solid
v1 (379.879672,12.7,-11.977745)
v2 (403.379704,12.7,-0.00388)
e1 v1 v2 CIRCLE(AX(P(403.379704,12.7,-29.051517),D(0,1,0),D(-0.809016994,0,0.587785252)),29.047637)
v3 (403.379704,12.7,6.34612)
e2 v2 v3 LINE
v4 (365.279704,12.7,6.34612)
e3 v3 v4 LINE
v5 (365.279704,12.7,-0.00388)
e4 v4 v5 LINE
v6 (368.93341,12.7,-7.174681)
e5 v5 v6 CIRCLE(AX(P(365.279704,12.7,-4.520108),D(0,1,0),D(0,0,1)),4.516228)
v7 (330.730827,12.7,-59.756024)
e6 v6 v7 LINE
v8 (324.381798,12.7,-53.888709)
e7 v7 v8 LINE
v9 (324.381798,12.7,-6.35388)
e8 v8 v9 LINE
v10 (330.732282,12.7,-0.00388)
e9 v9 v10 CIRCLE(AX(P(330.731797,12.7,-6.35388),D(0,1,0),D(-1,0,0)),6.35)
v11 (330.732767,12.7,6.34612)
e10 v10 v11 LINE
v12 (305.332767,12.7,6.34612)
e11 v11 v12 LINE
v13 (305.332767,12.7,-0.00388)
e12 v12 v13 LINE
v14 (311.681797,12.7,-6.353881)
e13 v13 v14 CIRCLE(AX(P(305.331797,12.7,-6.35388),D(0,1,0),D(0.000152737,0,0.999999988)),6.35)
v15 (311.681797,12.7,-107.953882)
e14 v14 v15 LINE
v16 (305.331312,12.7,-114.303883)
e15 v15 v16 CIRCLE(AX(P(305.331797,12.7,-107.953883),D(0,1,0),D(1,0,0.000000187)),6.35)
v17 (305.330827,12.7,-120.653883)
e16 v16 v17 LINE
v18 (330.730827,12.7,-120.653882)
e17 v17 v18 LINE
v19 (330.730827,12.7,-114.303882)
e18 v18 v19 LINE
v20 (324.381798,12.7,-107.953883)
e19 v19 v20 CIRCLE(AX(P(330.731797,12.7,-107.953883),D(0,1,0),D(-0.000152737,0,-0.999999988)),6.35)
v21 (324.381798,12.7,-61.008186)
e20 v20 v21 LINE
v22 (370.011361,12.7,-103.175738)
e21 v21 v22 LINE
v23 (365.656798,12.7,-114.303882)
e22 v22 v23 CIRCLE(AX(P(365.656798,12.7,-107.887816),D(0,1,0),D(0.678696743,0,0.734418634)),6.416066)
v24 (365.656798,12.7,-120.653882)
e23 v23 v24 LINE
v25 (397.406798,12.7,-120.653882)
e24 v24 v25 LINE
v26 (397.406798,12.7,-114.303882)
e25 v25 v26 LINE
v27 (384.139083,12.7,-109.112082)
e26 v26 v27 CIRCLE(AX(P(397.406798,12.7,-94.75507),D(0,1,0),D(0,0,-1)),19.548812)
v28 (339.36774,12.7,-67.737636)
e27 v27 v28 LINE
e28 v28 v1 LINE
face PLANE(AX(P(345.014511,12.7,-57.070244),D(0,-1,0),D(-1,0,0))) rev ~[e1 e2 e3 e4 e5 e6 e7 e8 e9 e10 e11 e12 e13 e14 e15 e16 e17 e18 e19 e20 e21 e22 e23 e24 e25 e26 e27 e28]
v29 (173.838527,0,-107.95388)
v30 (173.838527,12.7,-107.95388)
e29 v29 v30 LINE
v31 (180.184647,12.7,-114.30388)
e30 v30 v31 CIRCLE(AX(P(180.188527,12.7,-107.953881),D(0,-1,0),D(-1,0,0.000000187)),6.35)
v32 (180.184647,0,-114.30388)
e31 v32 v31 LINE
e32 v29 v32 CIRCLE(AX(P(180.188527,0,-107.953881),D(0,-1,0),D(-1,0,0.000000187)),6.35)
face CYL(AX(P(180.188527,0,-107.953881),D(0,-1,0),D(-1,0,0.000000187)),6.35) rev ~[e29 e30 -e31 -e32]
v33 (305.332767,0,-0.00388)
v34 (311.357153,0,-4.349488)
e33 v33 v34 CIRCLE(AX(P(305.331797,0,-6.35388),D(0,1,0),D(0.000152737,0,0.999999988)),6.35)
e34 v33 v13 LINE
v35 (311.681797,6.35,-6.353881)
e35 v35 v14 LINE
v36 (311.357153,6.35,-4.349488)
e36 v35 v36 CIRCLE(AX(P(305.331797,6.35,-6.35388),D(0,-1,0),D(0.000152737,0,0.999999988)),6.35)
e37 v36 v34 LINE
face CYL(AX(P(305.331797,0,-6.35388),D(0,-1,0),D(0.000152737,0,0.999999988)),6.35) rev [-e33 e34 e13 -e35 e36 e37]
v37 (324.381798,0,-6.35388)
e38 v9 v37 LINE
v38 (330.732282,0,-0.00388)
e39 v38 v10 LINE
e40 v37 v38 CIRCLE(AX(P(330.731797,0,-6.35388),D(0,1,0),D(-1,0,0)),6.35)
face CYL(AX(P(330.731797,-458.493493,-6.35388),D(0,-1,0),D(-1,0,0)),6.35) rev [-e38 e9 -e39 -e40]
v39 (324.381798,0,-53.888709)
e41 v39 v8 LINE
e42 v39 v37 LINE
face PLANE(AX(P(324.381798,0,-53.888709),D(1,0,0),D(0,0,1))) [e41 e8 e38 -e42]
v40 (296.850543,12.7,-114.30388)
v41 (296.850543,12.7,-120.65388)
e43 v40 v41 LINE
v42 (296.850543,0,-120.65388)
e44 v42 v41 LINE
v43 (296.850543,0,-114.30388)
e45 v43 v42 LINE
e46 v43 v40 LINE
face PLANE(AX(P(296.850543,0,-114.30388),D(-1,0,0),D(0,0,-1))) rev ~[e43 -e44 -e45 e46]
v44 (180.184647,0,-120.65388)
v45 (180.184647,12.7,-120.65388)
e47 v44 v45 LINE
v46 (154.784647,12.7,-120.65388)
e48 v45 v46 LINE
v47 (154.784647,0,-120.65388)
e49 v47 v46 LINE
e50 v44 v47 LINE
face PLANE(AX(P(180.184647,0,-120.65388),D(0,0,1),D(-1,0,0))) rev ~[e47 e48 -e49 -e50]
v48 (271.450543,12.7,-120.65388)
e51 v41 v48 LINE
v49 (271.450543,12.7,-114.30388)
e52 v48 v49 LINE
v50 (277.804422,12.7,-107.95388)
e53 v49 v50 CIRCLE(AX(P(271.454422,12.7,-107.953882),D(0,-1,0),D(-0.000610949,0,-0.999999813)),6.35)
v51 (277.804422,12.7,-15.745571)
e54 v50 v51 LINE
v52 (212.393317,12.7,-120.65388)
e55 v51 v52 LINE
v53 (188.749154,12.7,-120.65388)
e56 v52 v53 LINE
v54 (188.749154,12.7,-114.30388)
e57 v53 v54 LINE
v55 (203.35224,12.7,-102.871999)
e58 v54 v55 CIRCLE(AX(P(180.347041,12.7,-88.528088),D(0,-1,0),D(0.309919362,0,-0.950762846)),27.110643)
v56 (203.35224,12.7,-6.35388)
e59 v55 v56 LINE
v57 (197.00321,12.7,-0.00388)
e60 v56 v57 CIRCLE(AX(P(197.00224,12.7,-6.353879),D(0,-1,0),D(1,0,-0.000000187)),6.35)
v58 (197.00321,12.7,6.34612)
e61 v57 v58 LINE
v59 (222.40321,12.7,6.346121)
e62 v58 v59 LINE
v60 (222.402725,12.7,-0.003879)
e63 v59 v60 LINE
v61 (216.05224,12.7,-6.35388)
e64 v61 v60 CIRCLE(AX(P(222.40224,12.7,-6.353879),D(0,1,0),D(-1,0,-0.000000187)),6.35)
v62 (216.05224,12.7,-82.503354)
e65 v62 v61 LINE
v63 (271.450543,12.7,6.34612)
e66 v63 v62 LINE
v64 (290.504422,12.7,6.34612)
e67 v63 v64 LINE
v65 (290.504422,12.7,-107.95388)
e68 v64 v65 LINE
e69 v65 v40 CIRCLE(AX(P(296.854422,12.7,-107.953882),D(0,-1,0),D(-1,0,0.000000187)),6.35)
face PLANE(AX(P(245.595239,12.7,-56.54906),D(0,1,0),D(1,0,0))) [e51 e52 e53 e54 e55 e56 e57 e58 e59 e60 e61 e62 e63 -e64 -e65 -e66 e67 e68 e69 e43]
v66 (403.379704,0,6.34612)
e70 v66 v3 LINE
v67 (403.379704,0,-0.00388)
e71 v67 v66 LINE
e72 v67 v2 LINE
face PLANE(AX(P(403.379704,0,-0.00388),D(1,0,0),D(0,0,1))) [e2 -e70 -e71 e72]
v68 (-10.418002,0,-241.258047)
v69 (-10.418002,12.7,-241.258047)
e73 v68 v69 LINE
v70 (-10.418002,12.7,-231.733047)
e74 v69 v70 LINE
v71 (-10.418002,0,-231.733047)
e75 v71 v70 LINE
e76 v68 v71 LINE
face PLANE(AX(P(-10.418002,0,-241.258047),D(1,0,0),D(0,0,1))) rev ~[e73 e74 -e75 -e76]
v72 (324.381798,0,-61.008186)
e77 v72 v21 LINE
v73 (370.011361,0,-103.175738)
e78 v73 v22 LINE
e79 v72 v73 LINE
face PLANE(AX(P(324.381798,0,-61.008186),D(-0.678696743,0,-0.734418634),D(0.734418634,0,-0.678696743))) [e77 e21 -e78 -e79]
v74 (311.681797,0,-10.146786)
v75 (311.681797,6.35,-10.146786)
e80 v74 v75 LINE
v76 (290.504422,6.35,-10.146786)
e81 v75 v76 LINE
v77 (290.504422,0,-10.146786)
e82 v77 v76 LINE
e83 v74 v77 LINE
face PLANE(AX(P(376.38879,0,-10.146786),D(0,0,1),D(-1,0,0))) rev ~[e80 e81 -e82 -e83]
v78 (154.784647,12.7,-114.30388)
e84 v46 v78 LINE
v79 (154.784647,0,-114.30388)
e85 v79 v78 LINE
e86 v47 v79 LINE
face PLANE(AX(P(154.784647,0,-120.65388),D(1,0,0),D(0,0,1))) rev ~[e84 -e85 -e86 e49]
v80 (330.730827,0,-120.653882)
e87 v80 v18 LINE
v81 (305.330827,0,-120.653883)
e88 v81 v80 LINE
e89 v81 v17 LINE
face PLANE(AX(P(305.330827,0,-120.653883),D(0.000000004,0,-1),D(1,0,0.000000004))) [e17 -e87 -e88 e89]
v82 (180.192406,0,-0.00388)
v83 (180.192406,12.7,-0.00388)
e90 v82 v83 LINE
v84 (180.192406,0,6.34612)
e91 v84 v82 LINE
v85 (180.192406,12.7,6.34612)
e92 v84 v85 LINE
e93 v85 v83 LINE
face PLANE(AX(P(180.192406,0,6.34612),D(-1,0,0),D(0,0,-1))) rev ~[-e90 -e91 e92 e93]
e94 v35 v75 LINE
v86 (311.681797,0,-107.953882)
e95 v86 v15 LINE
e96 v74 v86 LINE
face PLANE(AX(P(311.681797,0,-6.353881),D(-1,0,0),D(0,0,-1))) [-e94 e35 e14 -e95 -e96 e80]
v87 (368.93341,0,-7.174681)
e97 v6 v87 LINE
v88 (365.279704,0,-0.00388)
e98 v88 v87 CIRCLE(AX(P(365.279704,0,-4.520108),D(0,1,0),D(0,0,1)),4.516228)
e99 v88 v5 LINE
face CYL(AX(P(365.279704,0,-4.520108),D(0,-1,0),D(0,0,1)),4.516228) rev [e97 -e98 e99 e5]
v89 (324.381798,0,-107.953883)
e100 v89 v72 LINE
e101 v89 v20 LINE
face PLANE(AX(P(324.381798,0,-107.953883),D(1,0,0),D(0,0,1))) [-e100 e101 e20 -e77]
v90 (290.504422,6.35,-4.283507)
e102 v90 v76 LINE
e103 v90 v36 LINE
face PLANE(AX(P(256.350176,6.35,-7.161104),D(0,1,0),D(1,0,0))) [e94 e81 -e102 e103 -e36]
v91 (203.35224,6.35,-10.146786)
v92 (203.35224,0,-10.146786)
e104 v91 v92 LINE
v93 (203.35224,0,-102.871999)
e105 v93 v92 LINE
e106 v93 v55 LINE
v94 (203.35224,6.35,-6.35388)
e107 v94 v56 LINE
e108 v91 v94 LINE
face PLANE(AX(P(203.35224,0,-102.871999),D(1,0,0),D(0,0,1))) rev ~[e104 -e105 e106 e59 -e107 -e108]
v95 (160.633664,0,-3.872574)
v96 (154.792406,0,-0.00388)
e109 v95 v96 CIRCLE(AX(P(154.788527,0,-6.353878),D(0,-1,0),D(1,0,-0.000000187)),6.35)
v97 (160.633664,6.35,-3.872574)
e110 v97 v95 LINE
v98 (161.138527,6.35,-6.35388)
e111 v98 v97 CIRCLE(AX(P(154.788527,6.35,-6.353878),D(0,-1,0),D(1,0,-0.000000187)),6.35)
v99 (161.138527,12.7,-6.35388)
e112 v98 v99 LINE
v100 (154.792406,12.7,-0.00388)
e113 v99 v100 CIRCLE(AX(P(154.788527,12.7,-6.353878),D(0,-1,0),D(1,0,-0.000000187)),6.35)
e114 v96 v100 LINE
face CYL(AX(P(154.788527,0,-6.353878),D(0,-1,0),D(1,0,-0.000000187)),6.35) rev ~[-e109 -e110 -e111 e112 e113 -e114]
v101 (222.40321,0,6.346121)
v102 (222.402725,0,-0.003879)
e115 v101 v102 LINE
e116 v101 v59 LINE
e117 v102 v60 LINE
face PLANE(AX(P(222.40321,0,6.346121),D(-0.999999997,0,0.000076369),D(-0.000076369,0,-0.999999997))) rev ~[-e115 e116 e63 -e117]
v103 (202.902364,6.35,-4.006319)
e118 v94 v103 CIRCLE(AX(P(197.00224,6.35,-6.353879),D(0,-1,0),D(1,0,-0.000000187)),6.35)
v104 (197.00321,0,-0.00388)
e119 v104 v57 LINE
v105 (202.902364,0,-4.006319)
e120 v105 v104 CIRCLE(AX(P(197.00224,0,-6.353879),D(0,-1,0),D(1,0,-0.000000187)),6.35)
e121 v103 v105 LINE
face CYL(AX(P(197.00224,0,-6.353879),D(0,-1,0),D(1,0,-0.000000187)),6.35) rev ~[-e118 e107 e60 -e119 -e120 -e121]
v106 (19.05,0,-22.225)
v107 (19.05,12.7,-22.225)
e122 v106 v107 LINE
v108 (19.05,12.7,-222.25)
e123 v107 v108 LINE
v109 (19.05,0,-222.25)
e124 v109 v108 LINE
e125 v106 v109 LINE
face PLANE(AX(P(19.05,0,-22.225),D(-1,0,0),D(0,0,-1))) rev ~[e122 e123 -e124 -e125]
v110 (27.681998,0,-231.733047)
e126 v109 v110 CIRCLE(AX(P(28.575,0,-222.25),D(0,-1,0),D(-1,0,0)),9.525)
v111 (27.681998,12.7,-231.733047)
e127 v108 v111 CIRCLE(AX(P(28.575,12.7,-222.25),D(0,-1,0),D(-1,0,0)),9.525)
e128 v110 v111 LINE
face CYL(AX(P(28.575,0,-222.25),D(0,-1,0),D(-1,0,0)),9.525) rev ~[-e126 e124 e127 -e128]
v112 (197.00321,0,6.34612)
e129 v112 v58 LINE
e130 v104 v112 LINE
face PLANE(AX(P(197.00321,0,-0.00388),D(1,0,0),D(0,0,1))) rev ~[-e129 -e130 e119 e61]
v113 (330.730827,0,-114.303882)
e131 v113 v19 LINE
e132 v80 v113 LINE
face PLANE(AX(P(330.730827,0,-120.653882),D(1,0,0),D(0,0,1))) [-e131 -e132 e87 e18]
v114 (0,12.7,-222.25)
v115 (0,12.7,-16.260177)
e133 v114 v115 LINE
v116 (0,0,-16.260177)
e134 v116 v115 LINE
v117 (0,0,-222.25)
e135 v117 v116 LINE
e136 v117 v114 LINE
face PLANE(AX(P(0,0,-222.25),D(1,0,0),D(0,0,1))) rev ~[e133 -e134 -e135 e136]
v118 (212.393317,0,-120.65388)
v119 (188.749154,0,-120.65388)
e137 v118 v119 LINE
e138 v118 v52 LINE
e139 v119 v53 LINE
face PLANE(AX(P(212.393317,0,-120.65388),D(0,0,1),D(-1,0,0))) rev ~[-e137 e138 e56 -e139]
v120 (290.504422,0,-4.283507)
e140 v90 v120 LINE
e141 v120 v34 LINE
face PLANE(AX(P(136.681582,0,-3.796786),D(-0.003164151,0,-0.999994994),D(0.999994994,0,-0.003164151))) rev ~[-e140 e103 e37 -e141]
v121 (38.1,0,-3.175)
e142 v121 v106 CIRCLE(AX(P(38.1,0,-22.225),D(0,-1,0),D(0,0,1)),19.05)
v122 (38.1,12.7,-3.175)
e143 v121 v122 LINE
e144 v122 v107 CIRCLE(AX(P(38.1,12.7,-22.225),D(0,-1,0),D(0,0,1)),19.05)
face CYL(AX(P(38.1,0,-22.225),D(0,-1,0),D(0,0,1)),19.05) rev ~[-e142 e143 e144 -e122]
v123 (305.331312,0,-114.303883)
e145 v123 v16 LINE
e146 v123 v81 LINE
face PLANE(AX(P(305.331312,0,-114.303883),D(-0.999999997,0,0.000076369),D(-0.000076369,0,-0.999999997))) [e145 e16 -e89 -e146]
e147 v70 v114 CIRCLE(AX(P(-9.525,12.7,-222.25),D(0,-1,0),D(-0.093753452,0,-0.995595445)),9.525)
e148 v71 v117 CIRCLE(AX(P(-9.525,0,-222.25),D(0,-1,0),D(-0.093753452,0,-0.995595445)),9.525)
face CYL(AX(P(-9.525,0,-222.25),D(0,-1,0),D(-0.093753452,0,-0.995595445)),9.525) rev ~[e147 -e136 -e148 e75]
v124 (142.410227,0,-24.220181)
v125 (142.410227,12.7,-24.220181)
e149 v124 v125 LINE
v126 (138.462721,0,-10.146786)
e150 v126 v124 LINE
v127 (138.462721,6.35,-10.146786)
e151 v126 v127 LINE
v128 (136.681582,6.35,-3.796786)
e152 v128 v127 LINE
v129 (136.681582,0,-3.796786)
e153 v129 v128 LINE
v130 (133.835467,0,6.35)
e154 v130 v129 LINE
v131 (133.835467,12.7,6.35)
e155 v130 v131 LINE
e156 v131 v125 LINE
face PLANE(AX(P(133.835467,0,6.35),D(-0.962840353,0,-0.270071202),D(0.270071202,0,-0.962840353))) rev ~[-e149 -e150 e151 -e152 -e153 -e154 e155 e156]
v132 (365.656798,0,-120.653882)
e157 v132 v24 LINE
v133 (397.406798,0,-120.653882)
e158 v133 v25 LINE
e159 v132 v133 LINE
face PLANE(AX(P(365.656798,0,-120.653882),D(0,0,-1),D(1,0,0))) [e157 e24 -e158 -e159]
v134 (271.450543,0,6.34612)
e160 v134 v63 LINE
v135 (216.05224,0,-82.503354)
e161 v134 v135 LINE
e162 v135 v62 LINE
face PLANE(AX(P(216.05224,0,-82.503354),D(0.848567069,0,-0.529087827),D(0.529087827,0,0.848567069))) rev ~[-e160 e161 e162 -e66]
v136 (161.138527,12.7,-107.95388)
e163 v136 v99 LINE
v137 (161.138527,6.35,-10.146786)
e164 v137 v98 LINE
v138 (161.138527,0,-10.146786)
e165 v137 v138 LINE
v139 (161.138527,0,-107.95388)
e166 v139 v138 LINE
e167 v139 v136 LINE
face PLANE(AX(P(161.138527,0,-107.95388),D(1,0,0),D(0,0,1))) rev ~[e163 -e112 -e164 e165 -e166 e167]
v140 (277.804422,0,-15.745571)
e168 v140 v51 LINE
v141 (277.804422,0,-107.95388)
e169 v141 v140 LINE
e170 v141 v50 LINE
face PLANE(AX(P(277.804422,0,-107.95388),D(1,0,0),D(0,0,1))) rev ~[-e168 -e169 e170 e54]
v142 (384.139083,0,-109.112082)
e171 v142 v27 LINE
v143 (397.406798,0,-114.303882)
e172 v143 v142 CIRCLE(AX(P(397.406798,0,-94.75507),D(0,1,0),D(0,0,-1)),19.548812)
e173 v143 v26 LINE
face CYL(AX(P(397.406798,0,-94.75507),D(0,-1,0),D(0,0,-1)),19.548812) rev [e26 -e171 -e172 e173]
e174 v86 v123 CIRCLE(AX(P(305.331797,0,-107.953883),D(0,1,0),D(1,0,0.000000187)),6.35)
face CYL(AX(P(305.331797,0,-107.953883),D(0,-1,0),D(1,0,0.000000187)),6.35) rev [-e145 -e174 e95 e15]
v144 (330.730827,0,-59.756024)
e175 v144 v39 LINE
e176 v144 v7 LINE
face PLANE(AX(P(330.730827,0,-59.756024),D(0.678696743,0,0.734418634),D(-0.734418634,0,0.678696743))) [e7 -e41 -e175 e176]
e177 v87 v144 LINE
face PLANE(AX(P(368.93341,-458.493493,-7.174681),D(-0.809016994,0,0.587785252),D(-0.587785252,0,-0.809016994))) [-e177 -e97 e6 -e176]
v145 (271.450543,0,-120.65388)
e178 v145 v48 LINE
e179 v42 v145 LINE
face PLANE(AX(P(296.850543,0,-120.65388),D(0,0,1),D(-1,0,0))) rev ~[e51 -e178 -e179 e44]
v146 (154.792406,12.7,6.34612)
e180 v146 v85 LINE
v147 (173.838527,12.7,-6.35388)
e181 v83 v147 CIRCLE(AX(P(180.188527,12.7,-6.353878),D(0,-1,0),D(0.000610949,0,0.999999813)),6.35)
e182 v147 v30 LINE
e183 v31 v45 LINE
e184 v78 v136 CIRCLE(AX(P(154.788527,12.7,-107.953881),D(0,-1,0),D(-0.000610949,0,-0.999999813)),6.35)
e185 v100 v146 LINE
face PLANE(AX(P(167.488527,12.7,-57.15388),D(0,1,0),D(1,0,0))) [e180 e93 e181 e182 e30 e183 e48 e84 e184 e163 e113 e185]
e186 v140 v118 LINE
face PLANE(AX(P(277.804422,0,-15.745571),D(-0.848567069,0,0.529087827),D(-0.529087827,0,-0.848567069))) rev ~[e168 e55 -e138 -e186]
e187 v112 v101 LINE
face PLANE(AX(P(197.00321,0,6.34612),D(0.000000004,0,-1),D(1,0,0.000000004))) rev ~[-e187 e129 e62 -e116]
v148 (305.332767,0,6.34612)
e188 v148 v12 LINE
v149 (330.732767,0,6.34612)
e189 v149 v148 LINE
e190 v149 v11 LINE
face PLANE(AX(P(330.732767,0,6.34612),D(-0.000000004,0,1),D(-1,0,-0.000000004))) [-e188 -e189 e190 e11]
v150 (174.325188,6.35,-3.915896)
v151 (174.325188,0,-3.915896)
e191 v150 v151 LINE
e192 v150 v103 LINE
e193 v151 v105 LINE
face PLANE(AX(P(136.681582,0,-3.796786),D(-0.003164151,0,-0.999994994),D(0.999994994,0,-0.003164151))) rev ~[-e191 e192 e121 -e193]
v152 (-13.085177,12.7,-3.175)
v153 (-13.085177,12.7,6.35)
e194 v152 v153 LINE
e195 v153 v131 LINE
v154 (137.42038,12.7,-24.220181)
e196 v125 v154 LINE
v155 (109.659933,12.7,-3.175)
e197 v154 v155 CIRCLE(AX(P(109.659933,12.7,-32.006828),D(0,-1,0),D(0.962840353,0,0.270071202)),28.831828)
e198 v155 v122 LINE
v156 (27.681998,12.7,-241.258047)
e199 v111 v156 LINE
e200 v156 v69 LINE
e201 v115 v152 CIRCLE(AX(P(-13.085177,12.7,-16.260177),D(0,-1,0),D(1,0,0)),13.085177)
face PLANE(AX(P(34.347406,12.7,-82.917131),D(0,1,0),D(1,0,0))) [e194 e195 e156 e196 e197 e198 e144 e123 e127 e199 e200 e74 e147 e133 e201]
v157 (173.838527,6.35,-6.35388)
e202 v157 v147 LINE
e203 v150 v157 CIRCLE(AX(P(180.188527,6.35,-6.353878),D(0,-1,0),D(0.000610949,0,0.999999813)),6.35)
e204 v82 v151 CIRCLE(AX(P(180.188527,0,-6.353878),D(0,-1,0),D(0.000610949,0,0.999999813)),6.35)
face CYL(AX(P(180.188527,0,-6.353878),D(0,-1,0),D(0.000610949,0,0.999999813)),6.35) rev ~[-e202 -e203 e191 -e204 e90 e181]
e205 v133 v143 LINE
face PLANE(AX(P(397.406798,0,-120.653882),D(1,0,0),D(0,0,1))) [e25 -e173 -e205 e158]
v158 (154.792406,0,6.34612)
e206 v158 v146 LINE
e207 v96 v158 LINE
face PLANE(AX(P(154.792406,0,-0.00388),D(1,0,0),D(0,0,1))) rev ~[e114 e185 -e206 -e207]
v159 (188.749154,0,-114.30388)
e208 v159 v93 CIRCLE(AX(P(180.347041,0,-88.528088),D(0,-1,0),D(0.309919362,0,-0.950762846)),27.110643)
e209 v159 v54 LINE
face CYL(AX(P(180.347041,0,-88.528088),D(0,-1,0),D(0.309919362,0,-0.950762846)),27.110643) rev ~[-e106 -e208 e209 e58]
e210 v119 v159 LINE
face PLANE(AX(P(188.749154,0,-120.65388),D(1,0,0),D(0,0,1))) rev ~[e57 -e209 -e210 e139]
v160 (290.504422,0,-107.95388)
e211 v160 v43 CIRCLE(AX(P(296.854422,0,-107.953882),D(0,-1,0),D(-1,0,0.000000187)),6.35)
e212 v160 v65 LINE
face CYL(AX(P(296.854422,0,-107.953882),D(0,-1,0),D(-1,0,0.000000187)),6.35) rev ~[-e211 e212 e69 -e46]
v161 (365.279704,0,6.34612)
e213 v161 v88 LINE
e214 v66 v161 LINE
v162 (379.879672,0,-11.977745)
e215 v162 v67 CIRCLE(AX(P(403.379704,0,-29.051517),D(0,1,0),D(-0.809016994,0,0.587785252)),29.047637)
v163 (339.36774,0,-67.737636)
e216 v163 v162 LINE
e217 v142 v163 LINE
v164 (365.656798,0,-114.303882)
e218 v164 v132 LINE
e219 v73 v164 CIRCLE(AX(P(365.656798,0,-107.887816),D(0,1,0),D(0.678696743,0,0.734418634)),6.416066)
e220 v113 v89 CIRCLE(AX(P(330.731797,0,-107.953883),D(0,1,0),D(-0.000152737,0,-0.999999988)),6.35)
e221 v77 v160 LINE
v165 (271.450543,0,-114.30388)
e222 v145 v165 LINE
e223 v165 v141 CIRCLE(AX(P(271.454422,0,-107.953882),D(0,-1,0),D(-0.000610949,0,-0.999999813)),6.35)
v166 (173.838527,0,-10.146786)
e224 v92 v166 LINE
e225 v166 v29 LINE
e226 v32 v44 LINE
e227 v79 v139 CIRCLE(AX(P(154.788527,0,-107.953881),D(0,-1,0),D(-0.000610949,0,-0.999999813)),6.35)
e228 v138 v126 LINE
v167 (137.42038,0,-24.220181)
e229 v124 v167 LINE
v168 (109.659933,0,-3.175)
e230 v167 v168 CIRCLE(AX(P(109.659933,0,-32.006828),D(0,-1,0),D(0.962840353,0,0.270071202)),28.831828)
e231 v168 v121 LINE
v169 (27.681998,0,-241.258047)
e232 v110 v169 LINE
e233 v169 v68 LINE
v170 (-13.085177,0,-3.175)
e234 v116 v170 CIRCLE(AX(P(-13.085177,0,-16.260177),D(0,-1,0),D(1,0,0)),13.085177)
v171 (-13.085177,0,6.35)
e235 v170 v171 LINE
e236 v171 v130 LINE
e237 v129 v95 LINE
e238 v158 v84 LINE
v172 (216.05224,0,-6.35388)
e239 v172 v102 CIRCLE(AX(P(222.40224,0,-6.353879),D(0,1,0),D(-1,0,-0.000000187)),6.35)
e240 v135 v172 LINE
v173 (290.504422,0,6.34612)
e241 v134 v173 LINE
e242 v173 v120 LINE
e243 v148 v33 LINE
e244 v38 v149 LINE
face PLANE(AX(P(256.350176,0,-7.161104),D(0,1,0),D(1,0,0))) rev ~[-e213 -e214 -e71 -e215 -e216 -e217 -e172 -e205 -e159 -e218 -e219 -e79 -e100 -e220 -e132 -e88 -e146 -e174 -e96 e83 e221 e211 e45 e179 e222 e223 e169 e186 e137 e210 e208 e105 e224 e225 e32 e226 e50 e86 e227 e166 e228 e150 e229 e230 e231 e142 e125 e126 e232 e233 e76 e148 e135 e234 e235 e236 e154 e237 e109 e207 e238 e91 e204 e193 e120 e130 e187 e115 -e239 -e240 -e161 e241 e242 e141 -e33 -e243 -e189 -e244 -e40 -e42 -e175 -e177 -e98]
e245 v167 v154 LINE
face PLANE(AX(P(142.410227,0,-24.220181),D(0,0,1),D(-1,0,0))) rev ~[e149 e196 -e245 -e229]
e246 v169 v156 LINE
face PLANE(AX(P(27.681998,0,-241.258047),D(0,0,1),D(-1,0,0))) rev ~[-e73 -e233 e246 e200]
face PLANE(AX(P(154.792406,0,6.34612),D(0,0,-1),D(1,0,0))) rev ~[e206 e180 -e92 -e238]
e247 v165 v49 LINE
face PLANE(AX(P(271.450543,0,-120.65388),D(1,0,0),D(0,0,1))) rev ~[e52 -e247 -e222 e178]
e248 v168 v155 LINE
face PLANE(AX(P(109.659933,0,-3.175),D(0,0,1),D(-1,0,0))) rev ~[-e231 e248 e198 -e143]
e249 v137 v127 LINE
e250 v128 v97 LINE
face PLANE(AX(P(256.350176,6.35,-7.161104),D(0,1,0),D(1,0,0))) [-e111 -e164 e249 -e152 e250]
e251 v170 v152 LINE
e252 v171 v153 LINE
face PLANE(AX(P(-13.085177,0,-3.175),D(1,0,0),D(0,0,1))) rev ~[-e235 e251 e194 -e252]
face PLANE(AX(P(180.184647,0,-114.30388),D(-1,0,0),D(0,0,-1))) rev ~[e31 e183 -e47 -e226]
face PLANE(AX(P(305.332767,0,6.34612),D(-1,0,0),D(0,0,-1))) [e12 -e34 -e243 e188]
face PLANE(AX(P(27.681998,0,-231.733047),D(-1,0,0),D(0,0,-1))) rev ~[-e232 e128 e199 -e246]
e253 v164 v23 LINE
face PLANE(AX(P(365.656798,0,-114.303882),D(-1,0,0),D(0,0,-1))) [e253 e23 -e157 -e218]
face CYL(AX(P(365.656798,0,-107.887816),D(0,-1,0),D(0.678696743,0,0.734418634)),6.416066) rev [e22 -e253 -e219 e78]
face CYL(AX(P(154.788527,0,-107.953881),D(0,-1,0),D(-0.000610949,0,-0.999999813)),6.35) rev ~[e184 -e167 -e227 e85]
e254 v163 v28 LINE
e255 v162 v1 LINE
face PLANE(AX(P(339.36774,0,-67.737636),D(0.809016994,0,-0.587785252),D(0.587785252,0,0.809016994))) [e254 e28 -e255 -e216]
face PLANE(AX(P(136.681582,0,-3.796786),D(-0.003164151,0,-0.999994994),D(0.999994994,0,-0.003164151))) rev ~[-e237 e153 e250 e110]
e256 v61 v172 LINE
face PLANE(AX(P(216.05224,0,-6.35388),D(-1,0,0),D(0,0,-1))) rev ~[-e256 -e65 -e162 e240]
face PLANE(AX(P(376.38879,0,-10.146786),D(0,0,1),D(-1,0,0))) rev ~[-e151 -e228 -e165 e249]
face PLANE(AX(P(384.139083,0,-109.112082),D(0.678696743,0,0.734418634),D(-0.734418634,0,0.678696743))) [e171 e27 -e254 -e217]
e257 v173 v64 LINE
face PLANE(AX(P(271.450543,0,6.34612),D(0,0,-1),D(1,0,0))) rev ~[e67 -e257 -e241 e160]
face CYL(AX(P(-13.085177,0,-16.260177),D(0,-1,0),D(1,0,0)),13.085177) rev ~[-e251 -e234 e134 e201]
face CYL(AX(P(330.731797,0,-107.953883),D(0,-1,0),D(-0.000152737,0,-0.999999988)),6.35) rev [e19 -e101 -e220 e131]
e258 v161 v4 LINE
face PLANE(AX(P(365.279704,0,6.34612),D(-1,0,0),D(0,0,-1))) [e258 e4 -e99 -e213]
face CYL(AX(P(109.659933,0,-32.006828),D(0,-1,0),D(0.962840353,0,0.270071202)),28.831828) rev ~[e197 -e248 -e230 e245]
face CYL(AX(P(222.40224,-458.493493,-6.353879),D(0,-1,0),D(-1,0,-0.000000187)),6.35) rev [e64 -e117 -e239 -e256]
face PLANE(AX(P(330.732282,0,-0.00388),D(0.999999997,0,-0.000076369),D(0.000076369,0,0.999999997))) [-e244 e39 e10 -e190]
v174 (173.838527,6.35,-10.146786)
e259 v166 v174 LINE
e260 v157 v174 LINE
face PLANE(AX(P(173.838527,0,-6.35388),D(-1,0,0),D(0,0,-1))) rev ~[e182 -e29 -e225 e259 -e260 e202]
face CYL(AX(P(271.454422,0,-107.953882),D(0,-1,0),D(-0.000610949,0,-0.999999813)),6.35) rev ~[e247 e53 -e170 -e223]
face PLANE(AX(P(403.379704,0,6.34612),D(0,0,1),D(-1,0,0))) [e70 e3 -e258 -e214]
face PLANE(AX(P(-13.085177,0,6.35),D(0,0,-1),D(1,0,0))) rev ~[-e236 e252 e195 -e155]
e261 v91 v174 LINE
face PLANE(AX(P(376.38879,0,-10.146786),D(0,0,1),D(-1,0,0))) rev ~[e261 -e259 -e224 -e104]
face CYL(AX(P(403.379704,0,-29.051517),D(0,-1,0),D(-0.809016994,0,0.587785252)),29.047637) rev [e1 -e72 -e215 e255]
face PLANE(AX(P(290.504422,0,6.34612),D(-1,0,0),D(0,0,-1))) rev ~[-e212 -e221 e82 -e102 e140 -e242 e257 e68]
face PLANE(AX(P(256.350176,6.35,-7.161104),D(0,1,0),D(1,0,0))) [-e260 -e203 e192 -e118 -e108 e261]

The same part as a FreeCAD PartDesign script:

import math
import FreeCAD as App
import Part
import Sketcher

V = App.Vector
Q = App.Units.Quantity

doc = App.newDocument("Part")
body = doc.addObject("PartDesign::Body", "Body")

sketch1 = body.newObject("Sketcher::SketchObject", "Sketch")
sketch1.AttachmentSupport = (doc.getObject("XZ_Plane"), [""])
sketch1.MapMode = "FlatFace"
sketch1.addGeometry([
    Part.LineSegment(V(174, -6, 0), V(174, -108, 0)),
    Part.ArcOfCircle(Part.Circle(V(180, -108, 0), V(0, 0, 1), 6), math.radians(180), math.radians(270)),
    Part.LineSegment(V(180, -114, 0), V(180, -121, 0)),
    Part.LineSegment(V(180, -121, 0), V(155, -121, 0)),
    Part.LineSegment(V(155, -121, 0), V(155, -114, 0)),
    Part.ArcOfCircle(Part.Circle(V(155, -108, 0), V(0, 0, 1), 6), math.radians(-90), math.radians(0)),
    Part.LineSegment(V(161, -108, 0), V(161, -6, 0)),
    Part.ArcOfCircle(Part.Circle(V(155, -6, 0), V(0, 0, 1), 6), math.radians(0), math.radians(90)),
    Part.LineSegment(V(155, 0, 0), V(155, 6, 0)),
    Part.LineSegment(V(155, 6, 0), V(180, 6, 0)),
    Part.LineSegment(V(180, 6, 0), V(180, 0, 0)),
    Part.ArcOfCircle(Part.Circle(V(180, -6, 0), V(0, 0, 1), 6), math.radians(90), math.radians(180)),
], False)
sketch1.addConstraint([
    Sketcher.Constraint("Tangent", 0, 2, 1, 1),
    Sketcher.Constraint("Coincident", 1, 2, 2, 1),
    Sketcher.Constraint("Coincident", 2, 2, 3, 1),
    Sketcher.Constraint("Coincident", 3, 2, 4, 1),
    Sketcher.Constraint("Coincident", 4, 2, 5, 1),
    Sketcher.Constraint("Tangent", 5, 2, 6, 1),
    Sketcher.Constraint("Tangent", 6, 2, 7, 1),
    Sketcher.Constraint("Coincident", 7, 2, 8, 1),
    Sketcher.Constraint("Coincident", 8, 2, 9, 1),
    Sketcher.Constraint("Coincident", 9, 2, 10, 1),
    Sketcher.Constraint("Coincident", 10, 2, 11, 1),
    Sketcher.Constraint("Tangent", 11, 2, 0, 1),
    Sketcher.Constraint("Vertical", 0),
    Sketcher.Constraint("Vertical", 2),
    Sketcher.Constraint("Horizontal", 3),
    Sketcher.Constraint("Vertical", 4),
    Sketcher.Constraint("Vertical", 6),
    Sketcher.Constraint("Vertical", 8),
    Sketcher.Constraint("Horizontal", 9),
    Sketcher.Constraint("Vertical", 10),
    Sketcher.Constraint("Equal", 1, 5),
    Sketcher.Constraint("Equal", 5, 7),
    Sketcher.Constraint("Equal", 7, 11),
    Sketcher.Constraint("Horizontal", 1, 3, 5, 3),
    Sketcher.Constraint("Horizontal", 7, 3, 11, 3),
    Sketcher.Constraint("Equal", 3, 9),
    Sketcher.Constraint("Equal", 4, 8),
    Sketcher.Constraint("DistanceX", 3, 2, 3, 1, Q("1 in")),
    Sketcher.Constraint("DistanceY", 0, 2, 0, 1, Q("4 in")),
    Sketcher.Constraint("Radius", 1, Q("0.25 in")),
    Sketcher.Constraint("DistanceX", 5, 3, 1, 3, Q("1 in")),
    Sketcher.Constraint("DistanceY", 2, 2, 2, 1, Q("0.25 in")),
    Sketcher.Constraint("DistanceY", 1, 3, -1, 1, 107.953881),
    Sketcher.Constraint("DistanceX", 1, 2, 1, 3, 0.00388),
    Sketcher.Constraint("DistanceX", 7, 3, 7, 2, 0.00388),
    Sketcher.Constraint("DistanceX", -1, 1, 1, 3, 180.188527),
])
pad1 = body.newObject("PartDesign::Pad", "Pad")
pad1.Profile = sketch1
pad1.Length = Q("0.5 in")
pad1.Reversed = True
body2 = doc.addObject("PartDesign::Body", "Body001")

sketch2 = body2.newObject("Sketcher::SketchObject", "Sketch001")
sketch2.AttachmentSupport = (doc.getObject("XZ_Plane001"), [""])
sketch2.MapMode = "FlatFace"
sketch2.addGeometry([
    Part.LineSegment(V(291, 6, 0), V(291, -108, 0)),
    Part.ArcOfCircle(Part.Circle(V(297, -108, 0), V(0, 0, 1), 6), math.radians(180), math.radians(270)),
    Part.LineSegment(V(297, -114, 0), V(297, -121, 0)),
    Part.LineSegment(V(297, -121, 0), V(271, -121, 0)),
    Part.LineSegment(V(271, -121, 0), V(271, -114, 0)),
    Part.ArcOfCircle(Part.Circle(V(271, -108, 0), V(0, 0, 1), 6), math.radians(-90), math.radians(0)),
    Part.LineSegment(V(278, -108, 0), V(278, -16, 0)),
    Part.LineSegment(V(278, -16, 0), V(212, -121, 0)),
    Part.LineSegment(V(212, -121, 0), V(189, -121, 0)),
    Part.LineSegment(V(189, -121, 0), V(189, -114, 0)),
    Part.ArcOfCircle(Part.Circle(V(180, -89, 0), V(0, 0, 1), 27), math.radians(-72), math.radians(-32)),
    Part.LineSegment(V(203, -103, 0), V(203, -6, 0)),
    Part.ArcOfCircle(Part.Circle(V(197, -6, 0), V(0, 0, 1), 6), math.radians(0), math.radians(90)),
    Part.LineSegment(V(197, 0, 0), V(197, 6, 0)),
    Part.LineSegment(V(197, 6, 0), V(222, 6, 0)),
    Part.LineSegment(V(222, 6, 0), V(222, 0, 0)),
    Part.ArcOfCircle(Part.Circle(V(222, -6, 0), V(0, 0, 1), 6), math.radians(90), math.radians(180)),
    Part.LineSegment(V(216, -6, 0), V(216, -83, 0)),
    Part.LineSegment(V(216, -83, 0), V(271, 6, 0)),
    Part.LineSegment(V(271, 6, 0), V(291, 6, 0)),
], False)
sketch2.addConstraint([
    Sketcher.Constraint("Tangent", 0, 2, 1, 1),
    Sketcher.Constraint("Coincident", 1, 2, 2, 1),
    Sketcher.Constraint("Coincident", 2, 2, 3, 1),
    Sketcher.Constraint("Coincident", 3, 2, 4, 1),
    Sketcher.Constraint("Coincident", 4, 2, 5, 1),
    Sketcher.Constraint("Tangent", 5, 2, 6, 1),
    Sketcher.Constraint("Coincident", 6, 2, 7, 1),
    Sketcher.Constraint("Coincident", 7, 2, 8, 1),
    Sketcher.Constraint("Coincident", 8, 2, 9, 1),
    Sketcher.Constraint("Coincident", 9, 2, 10, 1),
    Sketcher.Constraint("Coincident", 10, 2, 11, 1),
    Sketcher.Constraint("Tangent", 11, 2, 12, 1),
    Sketcher.Constraint("Coincident", 12, 2, 13, 1),
    Sketcher.Constraint("Coincident", 13, 2, 14, 1),
    Sketcher.Constraint("Coincident", 14, 2, 15, 1),
    Sketcher.Constraint("Coincident", 15, 2, 16, 1),
    Sketcher.Constraint("Tangent", 16, 2, 17, 1),
    Sketcher.Constraint("Coincident", 17, 2, 18, 1),
    Sketcher.Constraint("Coincident", 18, 2, 19, 1),
    Sketcher.Constraint("Coincident", 19, 2, 0, 1),
    Sketcher.Constraint("Vertical", 0),
    Sketcher.Constraint("Vertical", 2),
    Sketcher.Constraint("Horizontal", 3),
    Sketcher.Constraint("Vertical", 4),
    Sketcher.Constraint("Vertical", 6),
    Sketcher.Constraint("Horizontal", 8),
    Sketcher.Constraint("Vertical", 9),
    Sketcher.Constraint("Vertical", 11),
    Sketcher.Constraint("Vertical", 13),
    Sketcher.Constraint("Horizontal", 14),
    Sketcher.Constraint("Vertical", 17),
    Sketcher.Constraint("Horizontal", 19),
    Sketcher.Constraint("Equal", 1, 5),
    Sketcher.Constraint("Equal", 5, 12),
    Sketcher.Constraint("Equal", 12, 16),
    Sketcher.Constraint("Parallel", 7, 18),
    Sketcher.Constraint("Horizontal", 1, 3, 5, 3),
    Sketcher.Constraint("Horizontal", 12, 3, 16, 3),
    Sketcher.Constraint("Horizontal", 3, 2, 7, 2),
    Sketcher.Constraint("Horizontal", 4, 2, 9, 2),
    Sketcher.Constraint("Horizontal", 14, 2, 18, 2),
    Sketcher.Constraint("Vertical", 4, 2, 18, 2),
    Sketcher.Constraint("Equal", 3, 14),
    Sketcher.Constraint("Equal", 9, 13),
    Sketcher.Constraint("DistanceX", 3, 2, 3, 1, Q("1 in")),
    Sketcher.Constraint("Radius", 1, Q("0.25 in")),
    Sketcher.Constraint("DistanceY", 0, 2, 0, 1, Q("4.5 in")),
    Sketcher.Constraint("DistanceX", 5, 3, 1, 3, Q("1 in")),
    Sketcher.Constraint("DistanceY", 5, 3, 12, 3, Q("4.0000001 in")),
    Sketcher.Constraint("DistanceX", 12, 3, 16, 3, Q("1 in")),
    Sketcher.Constraint("Radius", 10, 27.110643),
    Sketcher.Constraint("DistanceX", 19, 1, 19, 2, 19.053879),
    Sketcher.Constraint("DistanceY", 6, 1, 6, 2, 92.20831),
    Sketcher.Constraint("DistanceY", 11, 1, 11, 2, 96.518119),
    Sketcher.Constraint("DistanceY", 10, 2, -1, 1, 102.871999),
    Sketcher.Constraint("DistanceX", 10, 3, 12, 3, 16.655199),
    Sketcher.Constraint("DistanceX", 10, 3, 1, 2, 116.503502),
    Sketcher.Constraint("DistanceX", 8, 2, 8, 1, 23.644163),
    Sketcher.Constraint("DistanceX", -1, 1, 10, 3, 180.347041),
    Sketcher.Constraint("DistanceX", -1, 1, 12, 2, 197.00321),
    Sketcher.Constraint("DistanceX", -1, 1, 15, 2, 222.402725),
])
pad2 = body2.newObject("PartDesign::Pad", "Pad001")
pad2.Profile = sketch2
pad2.Length = Q("0.5 in")
pad2.Reversed = True
body3 = doc.addObject("PartDesign::Body", "Body002")

sketch3 = body3.newObject("Sketcher::SketchObject", "Sketch002")
sketch3.AttachmentSupport = (doc.getObject("XZ_Plane002"), [""])
sketch3.MapMode = "FlatFace"
sketch3.addGeometry([
    Part.ArcOfCircle(Part.Circle(V(403.4, -29.1, 0), V(0, 0, 1), 29), math.radians(90), math.radians(144)),
    Part.LineSegment(V(379.9, -12, 0), V(339.4, -67.7, 0)),
    Part.LineSegment(V(339.4, -67.7, 0), V(384.1, -109.1, 0)),
    Part.ArcOfCircle(Part.Circle(V(397.4, -94.8, 0), V(0, 0, 1), 19.5), math.radians(-133), math.radians(-90)),
    Part.LineSegment(V(397.4, -114.3, 0), V(397.4, -120.7, 0)),
    Part.LineSegment(V(397.4, -120.7, 0), V(365.7, -120.7, 0)),
    Part.LineSegment(V(365.7, -120.7, 0), V(365.7, -114.3, 0)),
    Part.ArcOfCircle(Part.Circle(V(365.7, -107.9, 0), V(0, 0, 1), 6.4), math.radians(-90), math.radians(47)),
    Part.LineSegment(V(370, -103.2, 0), V(324.4, -61, 0)),
    Part.LineSegment(V(324.4, -61, 0), V(324.4, -108, 0)),
    Part.ArcOfCircle(Part.Circle(V(330.7, -108, 0), V(0, 0, 1), 6.3), math.radians(180), math.radians(270)),
    Part.LineSegment(V(330.7, -114.3, 0), V(330.7, -120.7, 0)),
    Part.LineSegment(V(330.7, -120.7, 0), V(305.3, -120.7, 0)),
    Part.LineSegment(V(305.3, -120.7, 0), V(305.3, -114.3, 0)),
    Part.ArcOfCircle(Part.Circle(V(305.3, -108, 0), V(0, 0, 1), 6.3), math.radians(-90), math.radians(0)),
    Part.LineSegment(V(311.7, -108, 0), V(311.7, -6.4, 0)),
    Part.ArcOfCircle(Part.Circle(V(305.3, -6.4, 0), V(0, 0, 1), 6.3), math.radians(0), math.radians(90)),
    Part.LineSegment(V(305.3, 0, 0), V(305.3, 6.3, 0)),
    Part.LineSegment(V(305.3, 6.3, 0), V(330.7, 6.3, 0)),
    Part.LineSegment(V(330.7, 6.3, 0), V(330.7, 0, 0)),
    Part.ArcOfCircle(Part.Circle(V(330.7, -6.4, 0), V(0, 0, 1), 6.3), math.radians(90), math.radians(180)),
    Part.LineSegment(V(324.4, -6.4, 0), V(324.4, -53.9, 0)),
    Part.LineSegment(V(324.4, -53.9, 0), V(330.7, -59.8, 0)),
    Part.LineSegment(V(330.7, -59.8, 0), V(368.9, -7.2, 0)),
    Part.ArcOfCircle(Part.Circle(V(365.3, -4.5, 0), V(0, 0, 1), 4.5), math.radians(-36), math.radians(90)),
    Part.LineSegment(V(365.3, 0, 0), V(365.3, 6.3, 0)),
    Part.LineSegment(V(365.3, 6.3, 0), V(403.4, 6.3, 0)),
    Part.LineSegment(V(403.4, 6.3, 0), V(403.4, 0, 0)),
], False)
sketch3.addConstraint([
    Sketcher.Constraint("Tangent", 0, 2, 1, 1),
    Sketcher.Constraint("Coincident", 1, 2, 2, 1),
    Sketcher.Constraint("Tangent", 2, 2, 3, 1),
    Sketcher.Constraint("Coincident", 3, 2, 4, 1),
    Sketcher.Constraint("Coincident", 4, 2, 5, 1),
    Sketcher.Constraint("Coincident", 5, 2, 6, 1),
    Sketcher.Constraint("Coincident", 6, 2, 7, 1),
    Sketcher.Constraint("Tangent", 7, 2, 8, 1),
    Sketcher.Constraint("Coincident", 8, 2, 9, 1),
    Sketcher.Constraint("Tangent", 9, 2, 10, 1),
    Sketcher.Constraint("Coincident", 10, 2, 11, 1),
    Sketcher.Constraint("Coincident", 11, 2, 12, 1),
    Sketcher.Constraint("Coincident", 12, 2, 13, 1),
    Sketcher.Constraint("Coincident", 13, 2, 14, 1),
    Sketcher.Constraint("Tangent", 14, 2, 15, 1),
    Sketcher.Constraint("Tangent", 15, 2, 16, 1),
    Sketcher.Constraint("Coincident", 16, 2, 17, 1),
    Sketcher.Constraint("Coincident", 17, 2, 18, 1),
    Sketcher.Constraint("Coincident", 18, 2, 19, 1),
    Sketcher.Constraint("Coincident", 19, 2, 20, 1),
    Sketcher.Constraint("Tangent", 20, 2, 21, 1),
    Sketcher.Constraint("Coincident", 21, 2, 22, 1),
    Sketcher.Constraint("Coincident", 22, 2, 23, 1),
    Sketcher.Constraint("Tangent", 23, 2, 24, 1),
    Sketcher.Constraint("Coincident", 24, 2, 25, 1),
    Sketcher.Constraint("Coincident", 25, 2, 26, 1),
    Sketcher.Constraint("Coincident", 26, 2, 27, 1),
    Sketcher.Constraint("Coincident", 27, 2, 0, 1),
    Sketcher.Constraint("Vertical", 4),
    Sketcher.Constraint("Horizontal", 5),
    Sketcher.Constraint("Vertical", 6),
    Sketcher.Constraint("Vertical", 9),
    Sketcher.Constraint("Vertical", 11),
    Sketcher.Constraint("Horizontal", 12),
    Sketcher.Constraint("Vertical", 15),
    Sketcher.Constraint("Vertical", 17),
    Sketcher.Constraint("Horizontal", 18),
    Sketcher.Constraint("Vertical", 21),
    Sketcher.Constraint("Vertical", 25),
    Sketcher.Constraint("Horizontal", 26),
    Sketcher.Constraint("Vertical", 27),
    Sketcher.Constraint("Equal", 10, 14),
    Sketcher.Constraint("Equal", 14, 16),
    Sketcher.Constraint("Equal", 16, 20),
    Sketcher.Constraint("Parallel", 2, 8),
    Sketcher.Constraint("Parallel", 13, 19),
    Sketcher.Constraint("Parallel", 8, 22),
    Sketcher.Constraint("Parallel", 1, 23),
    Sketcher.Constraint("Horizontal", 10, 3, 14, 3),
    Sketcher.Constraint("Horizontal", 16, 3, 20, 3),
    Sketcher.Constraint("Horizontal", 3, 2, 6, 2),
    Sketcher.Constraint("Horizontal", 6, 2, 10, 2),
    Sketcher.Constraint("Horizontal", 5, 2, 11, 2),
    Sketcher.Constraint("Horizontal", 19, 2, 24, 2),
    Sketcher.Constraint("Horizontal", 18, 2, 25, 2),
    Sketcher.Constraint("Horizontal", 24, 2, 27, 2),
    Sketcher.Constraint("Vertical", 10, 3, 20, 3),
    Sketcher.Constraint("Vertical", 7, 3, 5, 2),
    Sketcher.Constraint("Vertical", 11, 2, 22, 2),
    Sketcher.Constraint("Vertical", 0, 3, 26, 2),
    Sketcher.Constraint("Equal", 12, 18),
    Sketcher.Constraint("Equal", 11, 17),
    Sketcher.Constraint("DistanceX", 12, 2, 12, 1, Q("1 in")),
    Sketcher.Constraint("DistanceY", 15, 1, 15, 2, Q("4 in")),
    Sketcher.Constraint("Radius", 10, Q("0.25 in")),
    Sketcher.Constraint("DistanceX", 26, 1, 26, 2, Q("1.5 in")),
    Sketcher.Constraint("Angle", 1, Q("-126 deg")),
    Sketcher.Constraint("DistanceX", 14, 3, 10, 3, Q("1 in")),
    Sketcher.Constraint("DistanceX", 5, 2, 5, 1, Q("1.25 in")),
    Sketcher.Constraint("DistanceY", 4, 2, 4, 1, Q("0.25 in")),
    Sketcher.Constraint("DistanceX", 24, 3, 0, 3, Q("1.5 in")),
    Sketcher.Constraint("DistanceX", 7, 3, 3, 3, Q("1.25 in")),
    Sketcher.Constraint("Radius", 3, 19.548812),
    Sketcher.Constraint("Radius", 24, 4.516228),
    Sketcher.Constraint("DistanceX", 10, 3, 7, 3, Q("1.375 in")),
    Sketcher.Constraint("Radius", 0, 29.047637),
    Sketcher.Constraint("Radius", 7, 6.416066),
    Sketcher.Constraint("DistanceY", 21, 2, 21, 1, 47.534828),
    Sketcher.Constraint("DistanceY", 2, 2, 10, 3, 1.158199),
    Sketcher.Constraint("Distance", 2, 60.96161),
    Sketcher.Constraint("DistanceY", 3, 3, -1, 1, 94.75507),
    Sketcher.Constraint("DistanceX", -1, 1, 1, 2, 339.36774),
    Sketcher.Constraint("DistanceX", 16, 3, 16, 2, 0.00097),
    Sketcher.Constraint("DistanceX", 19, 2, 24, 2, 34.547422),
])
pad3 = body3.newObject("PartDesign::Pad", "Pad002")
pad3.Profile = sketch3
pad3.Length = Q("0.5 in")
pad3.Reversed = True
body4 = doc.addObject("PartDesign::Body", "Body003")

sketch4 = body4.newObject("Sketcher::SketchObject", "Sketch003")
sketch4.AttachmentSupport = (doc.getObject("XZ_Plane003"), [""])
sketch4.MapMode = "FlatFace"
sketch4.addGeometry([
    Part.LineSegment(V(133.8, 6.3, 0), V(142.4, -24.2, 0)),
    Part.LineSegment(V(142.4, -24.2, 0), V(137.4, -24.2, 0)),
    Part.ArcOfCircle(Part.Circle(V(109.7, -32, 0), V(0, 0, 1), 28.8), math.radians(16), math.radians(90)),
    Part.LineSegment(V(109.7, -3.2, 0), V(38.1, -3.2, 0)),
    Part.ArcOfCircle(Part.Circle(V(38.1, -22.2, 0), V(0, 0, 1), 19.1), math.radians(90), math.radians(180)),
    Part.LineSegment(V(19.1, -22.2, 0), V(19.1, -222.2, 0)),
    Part.ArcOfCircle(Part.Circle(V(28.6, -222.2, 0), V(0, 0, 1), 9.5), math.radians(180), math.radians(265)),
    Part.LineSegment(V(27.7, -231.7, 0), V(27.7, -241.3, 0)),
    Part.LineSegment(V(27.7, -241.3, 0), V(-10.4, -241.3, 0)),
    Part.LineSegment(V(-10.4, -241.3, 0), V(-10.4, -231.7, 0)),
    Part.ArcOfCircle(Part.Circle(V(-9.5, -222.2, 0), V(0, 0, 1), 9.5), math.radians(-95), math.radians(0)),
    Part.LineSegment(V(0, -222.2, 0), V(0, -16.3, 0)),
    Part.ArcOfCircle(Part.Circle(V(-13.1, -16.3, 0), V(0, 0, 1), 13.1), math.radians(0), math.radians(90)),
    Part.LineSegment(V(-13.1, -3.2, 0), V(-13.1, 6.3, 0)),
    Part.LineSegment(V(-13.1, 6.3, 0), V(133.8, 6.3, 0)),
], False)
sketch4.addConstraint([
    Sketcher.Constraint("Coincident", 0, 2, 1, 1),
    Sketcher.Constraint("Coincident", 1, 2, 2, 1),
    Sketcher.Constraint("Tangent", 2, 2, 3, 1),
    Sketcher.Constraint("Tangent", 3, 2, 4, 1),
    Sketcher.Constraint("Tangent", 4, 2, 5, 1),
    Sketcher.Constraint("Tangent", 5, 2, 6, 1),
    Sketcher.Constraint("Coincident", 6, 2, 7, 1),
    Sketcher.Constraint("Coincident", 7, 2, 8, 1),
    Sketcher.Constraint("Coincident", 8, 2, 9, 1),
    Sketcher.Constraint("Coincident", 9, 2, 10, 1),
    Sketcher.Constraint("Tangent", 10, 2, 11, 1),
    Sketcher.Constraint("Tangent", 11, 2, 12, 1),
    Sketcher.Constraint("Coincident", 12, 2, 13, 1),
    Sketcher.Constraint("Coincident", 13, 2, 14, 1),
    Sketcher.Constraint("Coincident", 14, 2, 0, 1),
    Sketcher.Constraint("Horizontal", 1),
    Sketcher.Constraint("Horizontal", 3),
    Sketcher.Constraint("Vertical", 5),
    Sketcher.Constraint("Vertical", 7),
    Sketcher.Constraint("Horizontal", 8),
    Sketcher.Constraint("Vertical", 9),
    Sketcher.Constraint("Vertical", 11),
    Sketcher.Constraint("Vertical", 13),
    Sketcher.Constraint("Horizontal", 14),
    Sketcher.Constraint("Equal", 6, 10),
    Sketcher.Constraint("PointOnObject", 10, 2, -2),
    Sketcher.Constraint("Horizontal", 6, 3, 10, 3),
    Sketcher.Constraint("Horizontal", 6, 2, 9, 2),
    Sketcher.Constraint("Horizontal", 3, 2, 12, 2),
    Sketcher.Constraint("Equal", 9, 13),
    Sketcher.Constraint("Radius", 4, Q("0.75 in")),
    Sketcher.Constraint("DistanceX", 8, 2, 8, 1, Q("1.5 in")),
    Sketcher.Constraint("Radius", 6, Q("0.375 in")),
    Sketcher.Constraint("Distance", 0, Q("1.25 in")),
    Sketcher.Constraint("DistanceY", 5, 2, 5, 1, Q("7.875 in")),
    Sketcher.Constraint("DistanceY", 7, 2, 7, 1, Q("0.375 in")),
    Sketcher.Constraint("DistanceY", 6, 3, -1, 1, Q("8.75 in")),
    Sketcher.Constraint("Radius", 2, 28.831828),
    Sketcher.Constraint("Radius", 12, 13.085177),
    Sketcher.Constraint("DistanceX", -1, 1, 6, 2, 27.681998),
    Sketcher.Constraint("DistanceX", 1, 2, 1, 1, 4.989847),
    Sketcher.Constraint("DistanceX", 3, 2, 3, 1, 71.559933),
    Sketcher.Constraint("DistanceX", 14, 1, 14, 2, 146.920643),
    Sketcher.Constraint("DistanceY", 0, 2, -1, 1, 24.220181),
])
pad4 = body4.newObject("PartDesign::Pad", "Pad003")
pad4.Profile = sketch4
pad4.Length = Q("0.5 in")
pad4.Reversed = True
body.AllowCompound = True
doc.recompute()

boolean = body.newObject("PartDesign::Boolean", "Boolean")
boolean.Type = "Fuse"
boolean.addObjects([body2])
doc.recompute()

boolean2 = body.newObject("PartDesign::Boolean", "Boolean001")
boolean2.Type = "Fuse"
boolean2.addObjects([body3])
doc.recompute()

boolean3 = body.newObject("PartDesign::Boolean", "Boolean002")
boolean3.Type = "Fuse"
boolean3.addObjects([body4])

sketch5 = body.newObject("Sketcher::SketchObject", "Sketch004")
sketch5.AttachmentSupport = (doc.getObject("XZ_Plane"), [""])
sketch5.MapMode = "FlatFace"
sketch5.addGeometry([
    Part.LineSegment(V(137, -4, 0), V(376, -5, 0)),
    Part.LineSegment(V(376, -5, 0), V(376, -10, 0)),
    Part.LineSegment(V(376, -10, 0), V(137, -10, 0)),
    Part.LineSegment(V(137, -10, 0), V(137, -4, 0)),
], False)
sketch5.addConstraint([
    Sketcher.Constraint("Coincident", 0, 2, 1, 1),
    Sketcher.Constraint("Coincident", 1, 2, 2, 1),
    Sketcher.Constraint("Coincident", 2, 2, 3, 1),
    Sketcher.Constraint("Coincident", 3, 2, 0, 1),
    Sketcher.Constraint("Vertical", 1),
    Sketcher.Constraint("Horizontal", 2),
    Sketcher.Constraint("Vertical", 3),
    Sketcher.Constraint("DistanceY", 3, 1, 3, 2, Q("0.25 in")),
    Sketcher.Constraint("DistanceX", 2, 2, 2, 1, 239.707208),
    Sketcher.Constraint("DistanceY", 1, 2, 1, 1, 5.591526),
    Sketcher.Constraint("DistanceX", -1, 1, 0, 2, 376.38879),
    Sketcher.Constraint("DistanceY", 0, 2, -1, 1, 4.555259),
])
pad5 = body.newObject("PartDesign::Pad", "Pad004")
pad5.Profile = sketch5
pad5.Length = Q("0.25 in")
pad5.Reversed = True

sketch6 = body.newObject("Sketcher::SketchObject", "Sketch005")
sketch6.AttachmentSupport = (doc.getObject("XZ_Plane"), [""])
sketch6.MapMode = "FlatFace"
sketch6.AttachmentOffset = App.Placement(V(0, 0, -0.5 * 25.4), App.Rotation())
sketch6.addGeometry([
    Part.LineSegment(V(324.7, -4.4, 0), V(369.8, -4.5, 0)),
    Part.ArcOfCircle(Part.Circle(V(365.3, -4.5, 0), V(0, 0, 1), 4.5), math.radians(-36), math.radians(0)),
    Part.LineSegment(V(368.9, -7.2, 0), V(366.8, -10.1, 0)),
    Part.LineSegment(V(366.8, -10.1, 0), V(324.4, -10.1, 0)),
    Part.LineSegment(V(324.4, -10.1, 0), V(324.4, -6.4, 0)),
    Part.ArcOfCircle(Part.Circle(V(330.7, -6.4, 0), V(0, 0, 1), 6.3), math.radians(162), math.radians(180)),
    Part.LineSegment(V(216.5, -4, 0), V(264.9, -4.2, 0)),
    Part.LineSegment(V(264.9, -4.2, 0), V(261.2, -10.1, 0)),
    Part.LineSegment(V(261.2, -10.1, 0), V(216.1, -10.1, 0)),
    Part.LineSegment(V(216.1, -10.1, 0), V(216.1, -6.4, 0)),
    Part.ArcOfCircle(Part.Circle(V(222.4, -6.4, 0), V(0, 0, 1), 6.3), math.radians(159), math.radians(180)),
], False)
sketch6.addConstraint([
    Sketcher.Constraint("Coincident", 0, 2, 1, 2),
    Sketcher.Constraint("Tangent", 1, 1, 2, 1),
    Sketcher.Constraint("Coincident", 2, 2, 3, 1),
    Sketcher.Constraint("Coincident", 3, 2, 4, 1),
    Sketcher.Constraint("Tangent", 4, 2, 5, 2),
    Sketcher.Constraint("Coincident", 5, 1, 0, 1),
    Sketcher.Constraint("Coincident", 6, 2, 7, 1),
    Sketcher.Constraint("Coincident", 7, 2, 8, 1),
    Sketcher.Constraint("Coincident", 8, 2, 9, 1),
    Sketcher.Constraint("Tangent", 9, 2, 10, 2),
    Sketcher.Constraint("Coincident", 10, 1, 6, 1),
    Sketcher.Constraint("Horizontal", 3),
    Sketcher.Constraint("Vertical", 4),
    Sketcher.Constraint("Horizontal", 8),
    Sketcher.Constraint("Vertical", 9),
    Sketcher.Constraint("Equal", 5, 10),
    Sketcher.Constraint("Parallel", 0, 6),
    Sketcher.Constraint("Horizontal", 5, 3, 10, 3),
    Sketcher.Constraint("Horizontal", 3, 2, 7, 2),
    Sketcher.Constraint("Radius", 5, Q("0.25 in")),
    Sketcher.Constraint("Angle", 2, Q("-126 deg")),
    Sketcher.Constraint("Radius", 1, 4.516228),
    Sketcher.Constraint("DistanceX", 3, 2, 3, 1, 42.392251),
    Sketcher.Constraint("DistanceY", 0, 2, -1, 1, 4.534398),
    Sketcher.Constraint("DistanceY", 1, 1, 5, 3, 0.820801),
    Sketcher.Constraint("DistanceY", 3, 2, 5, 1, 5.755102),
    Sketcher.Constraint("DistanceX", 8, 2, 8, 1, 45.114854),
    Sketcher.Constraint("DistanceY", 4, 1, 4, 2, 3.792906),
    Sketcher.Constraint("DistanceY", 1, 3, -1, 1, 4.520108),
    Sketcher.Constraint("DistanceX", -1, 1, 10, 3, 222.40224),
    Sketcher.Constraint("DistanceX", -1, 1, 0, 2, 369.79591),
    Sketcher.Constraint("DistanceX", -1, 1, 6, 2, 264.873459),
    Sketcher.Constraint("DistanceY", 3, 2, 6, 2, 5.944379),
])
pocket1 = body.newObject("PartDesign::Pocket", "Pocket")
pocket1.Profile = sketch6
pocket1.Type = "ThroughAll"
pocket1.Midplane = True

doc.recompute()
